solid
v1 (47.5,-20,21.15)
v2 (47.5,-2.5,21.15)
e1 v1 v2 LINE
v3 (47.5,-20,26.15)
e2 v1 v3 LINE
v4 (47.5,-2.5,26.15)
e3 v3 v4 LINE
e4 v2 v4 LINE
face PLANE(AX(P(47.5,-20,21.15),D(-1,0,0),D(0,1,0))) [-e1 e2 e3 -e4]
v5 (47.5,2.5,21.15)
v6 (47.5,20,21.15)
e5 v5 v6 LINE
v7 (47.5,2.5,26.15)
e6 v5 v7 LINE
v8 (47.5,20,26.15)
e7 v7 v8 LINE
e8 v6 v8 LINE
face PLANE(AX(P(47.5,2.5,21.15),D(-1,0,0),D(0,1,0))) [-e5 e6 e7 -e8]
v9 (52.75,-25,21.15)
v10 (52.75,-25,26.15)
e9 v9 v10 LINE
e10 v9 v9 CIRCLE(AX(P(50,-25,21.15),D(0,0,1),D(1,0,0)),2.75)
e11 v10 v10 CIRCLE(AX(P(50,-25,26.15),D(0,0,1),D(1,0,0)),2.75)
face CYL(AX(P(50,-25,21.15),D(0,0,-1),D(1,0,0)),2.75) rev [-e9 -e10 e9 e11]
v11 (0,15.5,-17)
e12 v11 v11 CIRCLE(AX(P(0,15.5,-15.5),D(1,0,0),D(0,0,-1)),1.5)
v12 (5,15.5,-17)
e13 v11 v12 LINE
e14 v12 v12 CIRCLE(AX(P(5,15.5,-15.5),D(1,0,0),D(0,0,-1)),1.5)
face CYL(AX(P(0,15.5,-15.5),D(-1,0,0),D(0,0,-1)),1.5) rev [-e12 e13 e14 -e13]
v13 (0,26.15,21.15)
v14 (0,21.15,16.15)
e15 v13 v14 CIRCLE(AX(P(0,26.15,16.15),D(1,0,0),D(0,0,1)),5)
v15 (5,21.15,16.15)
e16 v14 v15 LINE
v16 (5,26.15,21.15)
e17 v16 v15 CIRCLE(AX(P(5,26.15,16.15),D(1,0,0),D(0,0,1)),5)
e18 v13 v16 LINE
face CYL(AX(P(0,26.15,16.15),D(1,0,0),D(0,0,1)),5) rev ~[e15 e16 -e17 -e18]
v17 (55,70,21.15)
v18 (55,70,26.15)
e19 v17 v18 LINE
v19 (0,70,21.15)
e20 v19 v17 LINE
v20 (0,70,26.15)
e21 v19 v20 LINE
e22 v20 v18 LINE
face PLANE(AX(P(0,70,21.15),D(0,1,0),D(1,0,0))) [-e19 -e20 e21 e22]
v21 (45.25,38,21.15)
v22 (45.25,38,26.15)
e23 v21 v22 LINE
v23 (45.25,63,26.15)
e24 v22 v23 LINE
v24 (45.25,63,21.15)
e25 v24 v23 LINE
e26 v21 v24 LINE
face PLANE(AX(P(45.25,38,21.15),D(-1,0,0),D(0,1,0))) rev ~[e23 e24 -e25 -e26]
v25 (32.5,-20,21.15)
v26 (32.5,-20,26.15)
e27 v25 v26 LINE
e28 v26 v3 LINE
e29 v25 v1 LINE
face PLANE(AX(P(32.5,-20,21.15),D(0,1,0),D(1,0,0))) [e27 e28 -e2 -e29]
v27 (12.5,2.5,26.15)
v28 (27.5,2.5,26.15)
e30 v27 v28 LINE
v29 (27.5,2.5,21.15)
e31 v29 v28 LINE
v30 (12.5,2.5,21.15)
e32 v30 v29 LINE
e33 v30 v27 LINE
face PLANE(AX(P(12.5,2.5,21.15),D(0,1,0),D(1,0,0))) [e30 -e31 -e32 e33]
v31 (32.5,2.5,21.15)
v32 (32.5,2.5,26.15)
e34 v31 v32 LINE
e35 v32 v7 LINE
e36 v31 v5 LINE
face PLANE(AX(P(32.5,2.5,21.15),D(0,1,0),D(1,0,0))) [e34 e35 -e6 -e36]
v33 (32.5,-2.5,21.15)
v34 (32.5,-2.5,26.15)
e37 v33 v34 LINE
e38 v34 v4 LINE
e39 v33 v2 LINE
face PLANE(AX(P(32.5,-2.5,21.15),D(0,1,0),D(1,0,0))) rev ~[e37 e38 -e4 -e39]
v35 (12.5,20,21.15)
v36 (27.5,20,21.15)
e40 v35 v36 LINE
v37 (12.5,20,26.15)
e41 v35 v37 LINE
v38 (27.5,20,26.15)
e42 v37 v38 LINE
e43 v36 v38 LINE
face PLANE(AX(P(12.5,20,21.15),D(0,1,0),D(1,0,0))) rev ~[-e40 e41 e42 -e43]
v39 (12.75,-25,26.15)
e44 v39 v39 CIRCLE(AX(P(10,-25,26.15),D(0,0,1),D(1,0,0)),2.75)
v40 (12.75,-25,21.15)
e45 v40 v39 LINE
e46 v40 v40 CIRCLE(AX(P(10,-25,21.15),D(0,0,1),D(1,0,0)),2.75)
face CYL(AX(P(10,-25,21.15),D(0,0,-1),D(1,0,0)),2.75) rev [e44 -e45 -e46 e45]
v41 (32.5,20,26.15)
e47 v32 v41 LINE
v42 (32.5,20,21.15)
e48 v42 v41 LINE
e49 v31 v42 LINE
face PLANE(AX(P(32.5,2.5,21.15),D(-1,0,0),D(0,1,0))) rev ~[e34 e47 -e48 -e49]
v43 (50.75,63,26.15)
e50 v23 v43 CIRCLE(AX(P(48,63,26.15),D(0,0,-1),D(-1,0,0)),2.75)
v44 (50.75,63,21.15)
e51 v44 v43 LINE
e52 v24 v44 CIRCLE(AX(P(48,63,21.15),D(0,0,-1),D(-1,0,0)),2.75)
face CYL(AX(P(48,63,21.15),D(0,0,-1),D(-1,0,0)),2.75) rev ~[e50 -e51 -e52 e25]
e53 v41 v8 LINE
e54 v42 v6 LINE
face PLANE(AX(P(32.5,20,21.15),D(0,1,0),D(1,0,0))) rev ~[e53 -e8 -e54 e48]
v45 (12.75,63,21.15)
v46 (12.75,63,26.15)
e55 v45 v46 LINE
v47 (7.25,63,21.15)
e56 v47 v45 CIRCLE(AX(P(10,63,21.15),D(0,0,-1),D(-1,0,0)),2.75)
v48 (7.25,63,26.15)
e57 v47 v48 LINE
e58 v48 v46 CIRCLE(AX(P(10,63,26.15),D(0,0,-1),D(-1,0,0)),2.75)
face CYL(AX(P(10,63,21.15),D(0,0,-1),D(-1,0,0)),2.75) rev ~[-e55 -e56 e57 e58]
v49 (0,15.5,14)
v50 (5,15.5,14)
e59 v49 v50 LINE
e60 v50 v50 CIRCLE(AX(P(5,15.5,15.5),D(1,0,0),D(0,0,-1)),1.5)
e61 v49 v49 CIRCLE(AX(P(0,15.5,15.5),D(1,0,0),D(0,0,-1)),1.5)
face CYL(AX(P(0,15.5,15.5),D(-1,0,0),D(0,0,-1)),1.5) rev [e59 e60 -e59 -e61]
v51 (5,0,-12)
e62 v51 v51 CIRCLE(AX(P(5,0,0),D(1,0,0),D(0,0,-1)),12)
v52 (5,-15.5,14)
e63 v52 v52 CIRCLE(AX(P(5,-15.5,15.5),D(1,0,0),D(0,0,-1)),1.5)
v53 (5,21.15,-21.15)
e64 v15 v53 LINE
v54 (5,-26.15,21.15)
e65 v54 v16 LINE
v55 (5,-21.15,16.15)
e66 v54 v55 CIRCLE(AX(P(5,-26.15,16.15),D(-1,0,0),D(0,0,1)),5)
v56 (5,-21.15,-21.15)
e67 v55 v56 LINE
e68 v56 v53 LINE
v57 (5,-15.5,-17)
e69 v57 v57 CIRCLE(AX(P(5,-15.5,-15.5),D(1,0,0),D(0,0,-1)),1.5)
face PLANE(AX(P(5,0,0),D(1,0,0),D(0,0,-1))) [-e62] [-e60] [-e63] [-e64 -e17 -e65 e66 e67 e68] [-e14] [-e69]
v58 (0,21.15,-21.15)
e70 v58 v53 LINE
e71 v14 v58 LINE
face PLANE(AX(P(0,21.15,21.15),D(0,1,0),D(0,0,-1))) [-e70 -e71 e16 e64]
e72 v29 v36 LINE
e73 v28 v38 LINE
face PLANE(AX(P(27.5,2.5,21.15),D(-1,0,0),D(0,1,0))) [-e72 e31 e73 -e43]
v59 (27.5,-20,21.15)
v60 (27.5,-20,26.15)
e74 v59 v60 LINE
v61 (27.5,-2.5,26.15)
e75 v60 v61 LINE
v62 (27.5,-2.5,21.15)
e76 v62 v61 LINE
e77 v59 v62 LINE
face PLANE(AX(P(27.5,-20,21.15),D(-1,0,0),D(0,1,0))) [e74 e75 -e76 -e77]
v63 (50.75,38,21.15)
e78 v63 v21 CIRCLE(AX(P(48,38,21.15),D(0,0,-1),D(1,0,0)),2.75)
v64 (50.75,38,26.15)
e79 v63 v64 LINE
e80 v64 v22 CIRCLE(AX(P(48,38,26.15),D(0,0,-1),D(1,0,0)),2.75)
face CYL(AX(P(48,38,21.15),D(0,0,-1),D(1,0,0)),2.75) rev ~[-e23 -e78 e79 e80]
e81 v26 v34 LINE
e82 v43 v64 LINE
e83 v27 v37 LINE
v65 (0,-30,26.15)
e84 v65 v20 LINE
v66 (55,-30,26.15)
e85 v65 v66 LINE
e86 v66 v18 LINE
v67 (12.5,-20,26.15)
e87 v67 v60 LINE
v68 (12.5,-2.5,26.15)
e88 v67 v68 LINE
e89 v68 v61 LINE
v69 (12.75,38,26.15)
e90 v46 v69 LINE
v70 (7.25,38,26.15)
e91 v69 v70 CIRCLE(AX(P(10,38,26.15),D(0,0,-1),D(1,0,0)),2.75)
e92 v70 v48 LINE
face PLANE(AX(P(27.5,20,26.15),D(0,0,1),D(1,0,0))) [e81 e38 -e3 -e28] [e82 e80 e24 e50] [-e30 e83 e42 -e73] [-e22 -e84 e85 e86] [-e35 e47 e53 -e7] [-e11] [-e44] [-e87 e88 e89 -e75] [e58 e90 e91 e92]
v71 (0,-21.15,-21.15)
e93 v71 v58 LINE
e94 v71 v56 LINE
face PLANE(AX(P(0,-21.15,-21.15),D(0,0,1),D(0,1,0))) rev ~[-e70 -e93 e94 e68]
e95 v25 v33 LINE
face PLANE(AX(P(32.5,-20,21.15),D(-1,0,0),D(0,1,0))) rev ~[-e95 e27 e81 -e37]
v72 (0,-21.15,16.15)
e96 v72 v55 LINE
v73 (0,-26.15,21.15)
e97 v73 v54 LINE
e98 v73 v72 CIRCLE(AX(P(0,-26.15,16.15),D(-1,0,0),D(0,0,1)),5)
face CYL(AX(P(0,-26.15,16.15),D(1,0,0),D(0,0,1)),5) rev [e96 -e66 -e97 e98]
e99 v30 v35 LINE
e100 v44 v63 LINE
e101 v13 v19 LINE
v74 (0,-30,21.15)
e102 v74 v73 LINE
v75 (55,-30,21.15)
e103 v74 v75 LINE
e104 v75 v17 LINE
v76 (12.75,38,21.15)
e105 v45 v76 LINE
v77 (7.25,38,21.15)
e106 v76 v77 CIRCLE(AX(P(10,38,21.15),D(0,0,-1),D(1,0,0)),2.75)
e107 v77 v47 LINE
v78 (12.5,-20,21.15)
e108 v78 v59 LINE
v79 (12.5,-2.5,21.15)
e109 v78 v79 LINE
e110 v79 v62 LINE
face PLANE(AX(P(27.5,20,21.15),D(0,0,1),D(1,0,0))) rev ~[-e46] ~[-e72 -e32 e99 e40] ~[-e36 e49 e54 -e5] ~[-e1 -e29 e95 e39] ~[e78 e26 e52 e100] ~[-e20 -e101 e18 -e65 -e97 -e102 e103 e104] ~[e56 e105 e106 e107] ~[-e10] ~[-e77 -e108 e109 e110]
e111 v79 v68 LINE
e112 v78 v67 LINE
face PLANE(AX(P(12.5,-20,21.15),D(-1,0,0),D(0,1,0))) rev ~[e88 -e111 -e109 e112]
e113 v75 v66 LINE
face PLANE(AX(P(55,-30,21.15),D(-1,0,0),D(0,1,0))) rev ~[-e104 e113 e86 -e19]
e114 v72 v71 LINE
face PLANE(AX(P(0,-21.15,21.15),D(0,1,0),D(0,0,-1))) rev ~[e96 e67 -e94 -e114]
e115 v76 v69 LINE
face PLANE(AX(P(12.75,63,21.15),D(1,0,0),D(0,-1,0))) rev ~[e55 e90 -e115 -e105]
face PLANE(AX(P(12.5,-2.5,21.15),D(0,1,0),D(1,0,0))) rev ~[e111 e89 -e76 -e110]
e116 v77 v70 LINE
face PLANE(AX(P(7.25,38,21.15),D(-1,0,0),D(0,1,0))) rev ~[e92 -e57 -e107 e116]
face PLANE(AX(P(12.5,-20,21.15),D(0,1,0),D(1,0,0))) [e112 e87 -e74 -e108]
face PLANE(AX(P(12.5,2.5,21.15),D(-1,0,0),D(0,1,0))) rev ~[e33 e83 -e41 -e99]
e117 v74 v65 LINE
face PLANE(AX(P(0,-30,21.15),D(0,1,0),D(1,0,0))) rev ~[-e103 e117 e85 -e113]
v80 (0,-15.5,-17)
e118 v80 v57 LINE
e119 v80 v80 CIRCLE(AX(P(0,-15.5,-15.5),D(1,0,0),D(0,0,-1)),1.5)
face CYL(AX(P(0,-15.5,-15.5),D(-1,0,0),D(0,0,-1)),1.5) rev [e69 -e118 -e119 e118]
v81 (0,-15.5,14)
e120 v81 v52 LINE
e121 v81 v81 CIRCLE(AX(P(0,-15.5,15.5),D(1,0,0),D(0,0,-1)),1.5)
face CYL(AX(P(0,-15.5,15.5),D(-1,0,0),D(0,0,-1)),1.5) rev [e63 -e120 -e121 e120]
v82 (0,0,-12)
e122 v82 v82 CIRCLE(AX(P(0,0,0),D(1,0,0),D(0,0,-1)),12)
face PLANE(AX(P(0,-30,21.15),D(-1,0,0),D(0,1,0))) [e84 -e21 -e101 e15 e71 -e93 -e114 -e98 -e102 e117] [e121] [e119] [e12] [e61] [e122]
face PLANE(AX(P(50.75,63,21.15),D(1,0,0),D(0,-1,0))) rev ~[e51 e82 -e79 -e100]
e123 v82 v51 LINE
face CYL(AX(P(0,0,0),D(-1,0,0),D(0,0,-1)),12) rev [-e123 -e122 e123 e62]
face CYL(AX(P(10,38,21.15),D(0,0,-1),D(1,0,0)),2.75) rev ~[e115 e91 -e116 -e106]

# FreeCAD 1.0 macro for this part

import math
import FreeCAD as App
import Part
import Sketcher

V = App.Vector
Q = App.Units.Quantity


def edges_at(feature, points):
    """Names of the edges that pass closest to the given points."""
    edges = feature.Shape.Edges
    near = lambda p: min(range(len(edges)), key=lambda i: edges[i].distToShape(Part.Vertex(*p))[0])
    return sorted({f"Edge{near(p) + 1}" for p in points})

doc = App.newDocument("Part")
params = doc.addObject("Spreadsheet::Sheet", "Params")
for row, (alias, value) in enumerate([
    ("sketch1_diameter", "3 mm"),
    ("sketch1_diameter2", "24 mm"),
    ("sketch1_width", "42.3 mm"),
    ("pad1_length", "5 mm"),
    ("sketch2_diameter", "5.5 mm"),
    ("sketch2_width", "55 mm"),
    ("sketch2_width2", "15 mm"),
    ("sketch2_height", "100 mm"),
    ("sketch2_height2", "25 mm"),
    ("pad2_length", "5 mm"),
    ("fillet_radius", "5 mm"),
], start=1):
    params.set(f"A{row}", alias)
    params.set(f"B{row}", "=" + value)
    params.setAlias(f"B{row}", alias)

body = doc.addObject("PartDesign::Body", "Body")

# Sketch on YZ plane
sketch1 = doc.addObject("Sketcher::SketchObject", "Sketch")
body.addObject(sketch1)
sketch1.AttachmentSupport = (doc.YZ_Plane, [""])
sketch1.MapMode = "FlatFace"
sketch1.addGeometry([
    Part.LineSegment(V(21.1, 21.1, 0), V(-21.1, 21.1, 0)),  # 0
    Part.LineSegment(V(-21.1, 21.1, 0), V(-21.1, -21.1, 0)),  # 1
    Part.LineSegment(V(-21.1, -21.1, 0), V(21.1, -21.1, 0)),  # 2
    Part.LineSegment(V(21.1, -21.1, 0), V(21.1, 21.1, 0)),  # 3
    Part.Circle(V(-15.5, 15.5, 0), V(0, 0, 1), 1.5),  # 4
    Part.Circle(V(-15.5, -15.5, 0), V(0, 0, 1), 1.5),  # 5
    Part.Circle(V(15.5, 15.5, 0), V(0, 0, 1), 1.5),  # 6
    Part.Circle(V(0, 0, 0), V(0, 0, 1), 12),  # 7
    Part.Circle(V(15.5, -15.5, 0), V(0, 0, 1), 1.5),  # 8
], False)
sketch1.addConstraint([
    Sketcher.Constraint("Coincident", 0, 2, 1, 1),
    Sketcher.Constraint("Coincident", 1, 2, 2, 1),
    Sketcher.Constraint("Coincident", 2, 2, 3, 1),
    Sketcher.Constraint("Coincident", 3, 2, 0, 1),
    Sketcher.Constraint("Horizontal", 0),
    Sketcher.Constraint("Vertical", 1),
    Sketcher.Constraint("Horizontal", 2),
    Sketcher.Constraint("Vertical", 3),
    Sketcher.Constraint("Coincident", 7, 3, -1, 1),
    Sketcher.Constraint("Equal", 4, 5),
    Sketcher.Constraint("Equal", 5, 6),
    Sketcher.Constraint("Equal", 6, 8),
    Sketcher.Constraint("Symmetric", 5, 3, 6, 3, -1, 1),
    Sketcher.Constraint("Symmetric", 4, 3, 8, 3, -1, 1),
    Sketcher.Constraint("Symmetric", 0, 2, 2, 2, -1, 1),
    Sketcher.Constraint("Symmetric", 4, 3, 6, 3, -2),
    Sketcher.Constraint("Equal", 2, 1),
    Sketcher.Constraint("Diameter", 4, Q("3 mm")),
    Sketcher.Constraint("Diameter", 7, Q("24 mm")),
    Sketcher.Constraint("DistanceX", 0, 2, 0, 1, Q("42.3 mm")),
    Sketcher.Constraint("DistanceY", 5, 3, 4, 3, Q("31 mm")),
    Sketcher.Constraint("DistanceX", 4, 3, 6, 3, Q("31 mm")),
])
sketch1.setExpression("Constraints[17]", "Params.sketch1_diameter")
sketch1.setExpression("Constraints[18]", "Params.sketch1_diameter2")
sketch1.setExpression("Constraints[19]", "Params.sketch1_width")
pad1 = doc.addObject("PartDesign::Pad", "Pad")
body.addObject(pad1)
pad1.Profile = sketch1
pad1.setExpression("Length", "Params.pad1_length")

# Sketch on XY plane
sketch2 = doc.addObject("Sketcher::SketchObject", "Sketch001")
body.addObject(sketch2)
sketch2.AttachmentSupport = (doc.XY_Plane, [""])
sketch2.MapMode = "FlatFace"
sketch2.AttachmentOffset = App.Placement(V(0, 0, 21.15), App.Rotation())
sketch2.addGeometry([
    Part.LineSegment(V(0, 70, 0), V(0, -30, 0)),  # 0
    Part.LineSegment(V(0, -30, 0), V(55, -30, 0)),  # 1
    Part.LineSegment(V(55, -30, 0), V(55, 70, 0)),  # 2
    Part.LineSegment(V(55, 70, 0), V(0, 70, 0)),  # 3
    Part.Circle(V(10, -25, 0), V(0, 0, 1), 2.8),  # 4
    Part.LineSegment(V(27.5, -20, 0), V(12.5, -20, 0)),  # 5
    Part.LineSegment(V(12.5, -20, 0), V(12.5, -2.5, 0)),  # 6
    Part.LineSegment(V(12.5, -2.5, 0), V(27.5, -2.5, 0)),  # 7
    Part.LineSegment(V(27.5, -2.5, 0), V(27.5, -20, 0)),  # 8
    Part.LineSegment(V(27.5, 2.5, 0), V(12.5, 2.5, 0)),  # 9
    Part.LineSegment(V(12.5, 2.5, 0), V(12.5, 20, 0)),  # 10
    Part.LineSegment(V(12.5, 20, 0), V(27.5, 20, 0)),  # 11
    Part.LineSegment(V(27.5, 20, 0), V(27.5, 2.5, 0)),  # 12
    Part.LineSegment(V(47.5, -20, 0), V(32.5, -20, 0)),  # 13
    Part.LineSegment(V(32.5, -20, 0), V(32.5, -2.5, 0)),  # 14
    Part.LineSegment(V(32.5, -2.5, 0), V(47.5, -2.5, 0)),  # 15
    Part.LineSegment(V(47.5, -2.5, 0), V(47.5, -20, 0)),  # 16
    Part.Circle(V(50, -25, 0), V(0, 0, 1), 2.8),  # 17
    Part.LineSegment(V(47.5, 2.5, 0), V(32.5, 2.5, 0)),  # 18
    Part.LineSegment(V(32.5, 2.5, 0), V(32.5, 20, 0)),  # 19
    Part.LineSegment(V(32.5, 20, 0), V(47.5, 20, 0)),  # 20
    Part.LineSegment(V(47.5, 20, 0), V(47.5, 2.5, 0)),  # 21
    Part.ArcOfCircle(Part.Circle(V(10, 63, 0), V(0, 0, 1), 2.8), math.radians(0), math.radians(180)),  # 22
    Part.LineSegment(V(12.8, 63, 0), V(12.8, 38, 0)),  # 23
    Part.ArcOfCircle(Part.Circle(V(10, 38, 0), V(0, 0, 1), 2.8), math.radians(180), math.radians(360)),  # 24
    Part.LineSegment(V(7.2, 38, 0), V(7.2, 63, 0)),  # 25
    Part.ArcOfCircle(Part.Circle(V(48, 63, 0), V(0, 0, 1), 2.8), math.radians(0), math.radians(180)),  # 26
    Part.LineSegment(V(50.8, 63, 0), V(50.8, 38, 0)),  # 27
    Part.ArcOfCircle(Part.Circle(V(48, 38, 0), V(0, 0, 1), 2.8), math.radians(180), math.radians(360)),  # 28
    Part.LineSegment(V(45.2, 38, 0), V(45.2, 63, 0)),  # 29
], False)
sketch2.addConstraint([
    Sketcher.Constraint("Coincident", 0, 2, 1, 1),
    Sketcher.Constraint("Coincident", 1, 2, 2, 1),
    Sketcher.Constraint("Coincident", 2, 2, 3, 1),
    Sketcher.Constraint("Coincident", 3, 2, 0, 1),
    Sketcher.Constraint("Coincident", 5, 2, 6, 1),
    Sketcher.Constraint("Coincident", 6, 2, 7, 1),
    Sketcher.Constraint("Coincident", 7, 2, 8, 1),
    Sketcher.Constraint("Coincident", 8, 2, 5, 1),
    Sketcher.Constraint("Coincident", 9, 2, 10, 1),
    Sketcher.Constraint("Coincident", 10, 2, 11, 1),
    Sketcher.Constraint("Coincident", 11, 2, 12, 1),
    Sketcher.Constraint("Coincident", 12, 2, 9, 1),
    Sketcher.Constraint("Coincident", 13, 2, 14, 1),
    Sketcher.Constraint("Coincident", 14, 2, 15, 1),
    Sketcher.Constraint("Coincident", 15, 2, 16, 1),
    Sketcher.Constraint("Coincident", 16, 2, 13, 1),
    Sketcher.Constraint("Coincident", 18, 2, 19, 1),
    Sketcher.Constraint("Coincident", 19, 2, 20, 1),
    Sketcher.Constraint("Coincident", 20, 2, 21, 1),
    Sketcher.Constraint("Coincident", 21, 2, 18, 1),
    Sketcher.Constraint("Tangent", 22, 1, 23, 1),
    Sketcher.Constraint("Tangent", 23, 2, 24, 2),
    Sketcher.Constraint("Tangent", 24, 1, 25, 1),
    Sketcher.Constraint("Tangent", 25, 2, 22, 2),
    Sketcher.Constraint("Tangent", 26, 1, 27, 1),
    Sketcher.Constraint("Tangent", 27, 2, 28, 2),
    Sketcher.Constraint("Tangent", 28, 1, 29, 1),
    Sketcher.Constraint("Tangent", 29, 2, 26, 2),
    Sketcher.Constraint("Vertical", 0),
    Sketcher.Constraint("Horizontal", 1),
    Sketcher.Constraint("Vertical", 2),
    Sketcher.Constraint("Horizontal", 3),
    Sketcher.Constraint("Horizontal", 5),
    Sketcher.Constraint("Vertical", 6),
    Sketcher.Constraint("Horizontal", 7),
    Sketcher.Constraint("Vertical", 8),
    Sketcher.Constraint("Horizontal", 9),
    Sketcher.Constraint("Vertical", 10),
    Sketcher.Constraint("Horizontal", 11),
    Sketcher.Constraint("Vertical", 12),
    Sketcher.Constraint("Horizontal", 13),
    Sketcher.Constraint("Vertical", 14),
    Sketcher.Constraint("Horizontal", 15),
    Sketcher.Constraint("Vertical", 16),
    Sketcher.Constraint("Horizontal", 18),
    Sketcher.Constraint("Vertical", 19),
    Sketcher.Constraint("Horizontal", 20),
    Sketcher.Constraint("Vertical", 21),
    Sketcher.Constraint("Vertical", 23),
    Sketcher.Constraint("Vertical", 25),
    Sketcher.Constraint("Vertical", 27),
    Sketcher.Constraint("Vertical", 29),
    Sketcher.Constraint("Equal", 4, 17),
    Sketcher.Constraint("Equal", 17, 22),
    Sketcher.Constraint("Equal", 24, 26),
    Sketcher.Constraint("Symmetric", 6, 2, 9, 2, -1),
    Sketcher.Constraint("Symmetric", 8, 2, 11, 2, -1),
    Sketcher.Constraint("Symmetric", 14, 2, 18, 2, -1),
    Sketcher.Constraint("Symmetric", 16, 2, 20, 2, -1),
    Sketcher.Constraint("PointOnObject", 0, 2, -2),
    Sketcher.Constraint("Horizontal", 4, 3, 17, 3),
    Sketcher.Constraint("Horizontal", 22, 3, 26, 3),
    Sketcher.Constraint("Horizontal", 24, 3, 28, 3),
    Sketcher.Constraint("Horizontal", 8, 2, 13, 2),
    Sketcher.Constraint("Horizontal", 7, 2, 14, 2),
    Sketcher.Constraint("Vertical", 4, 3, 22, 3),
    Sketcher.Constraint("Equal", 11, 13),
    Sketcher.Constraint("Diameter", 4, Q("5.5 mm")),
    Sketcher.Constraint("DistanceX", 1, 1, 1, 2, Q("55 mm")),
    Sketcher.Constraint("DistanceX", 5, 2, 5, 1, Q("15 mm")),
    Sketcher.Constraint("DistanceY", 0, 2, 0, 1, Q("100 mm")),
    Sketcher.Constraint("DistanceY", 23, 2, 23, 1, Q("25 mm")),
    Sketcher.Constraint("DistanceY", 6, 1, 6, 2, Q("17.5 mm")),
    Sketcher.Constraint("DistanceX", -1, 1, 4, 3, Q("10 mm")),
    Sketcher.Constraint("DistanceY", 4, 3, -1, 1, Q("25 mm")),
    Sketcher.Constraint("DistanceX", -1, 1, 17, 3, Q("50 mm")),
    Sketcher.Constraint("DistanceY", -1, 1, 22, 3, Q("63 mm")),
    Sketcher.Constraint("DistanceX", -1, 1, 26, 3, Q("48 mm")),
    Sketcher.Constraint("DistanceY", 0, 2, -1, 1, Q("30 mm")),
    Sketcher.Constraint("DistanceY", 5, 2, -1, 1, Q("20 mm")),
    Sketcher.Constraint("DistanceX", 8, 2, 13, 2, Q("5 mm")),
    Sketcher.Constraint("DistanceX", -1, 1, 5, 2, Q("12.5 mm")),
])
sketch2.setExpression("Constraints[67]", "Params.sketch2_diameter")
sketch2.setExpression("Constraints[68]", "Params.sketch2_width")
sketch2.setExpression("Constraints[69]", "Params.sketch2_width2")
sketch2.setExpression("Constraints[70]", "Params.sketch2_height")
sketch2.setExpression("Constraints[71]", "Params.sketch2_height2")
pad2 = doc.addObject("PartDesign::Pad", "Pad001")
body.addObject(pad2)
pad2.Profile = sketch2
pad2.setExpression("Length", "Params.pad2_length")
doc.recompute()

fillet = doc.addObject("PartDesign::Fillet", "Fillet")
body.addObject(fillet)
fillet.Base = (pad2, edges_at(pad2, [(2.5, -21.15, 21.15), (2.5, 21.15, 21.15)]))
fillet.setExpression("Radius", "Params.fillet_radius")

doc.recompute()
